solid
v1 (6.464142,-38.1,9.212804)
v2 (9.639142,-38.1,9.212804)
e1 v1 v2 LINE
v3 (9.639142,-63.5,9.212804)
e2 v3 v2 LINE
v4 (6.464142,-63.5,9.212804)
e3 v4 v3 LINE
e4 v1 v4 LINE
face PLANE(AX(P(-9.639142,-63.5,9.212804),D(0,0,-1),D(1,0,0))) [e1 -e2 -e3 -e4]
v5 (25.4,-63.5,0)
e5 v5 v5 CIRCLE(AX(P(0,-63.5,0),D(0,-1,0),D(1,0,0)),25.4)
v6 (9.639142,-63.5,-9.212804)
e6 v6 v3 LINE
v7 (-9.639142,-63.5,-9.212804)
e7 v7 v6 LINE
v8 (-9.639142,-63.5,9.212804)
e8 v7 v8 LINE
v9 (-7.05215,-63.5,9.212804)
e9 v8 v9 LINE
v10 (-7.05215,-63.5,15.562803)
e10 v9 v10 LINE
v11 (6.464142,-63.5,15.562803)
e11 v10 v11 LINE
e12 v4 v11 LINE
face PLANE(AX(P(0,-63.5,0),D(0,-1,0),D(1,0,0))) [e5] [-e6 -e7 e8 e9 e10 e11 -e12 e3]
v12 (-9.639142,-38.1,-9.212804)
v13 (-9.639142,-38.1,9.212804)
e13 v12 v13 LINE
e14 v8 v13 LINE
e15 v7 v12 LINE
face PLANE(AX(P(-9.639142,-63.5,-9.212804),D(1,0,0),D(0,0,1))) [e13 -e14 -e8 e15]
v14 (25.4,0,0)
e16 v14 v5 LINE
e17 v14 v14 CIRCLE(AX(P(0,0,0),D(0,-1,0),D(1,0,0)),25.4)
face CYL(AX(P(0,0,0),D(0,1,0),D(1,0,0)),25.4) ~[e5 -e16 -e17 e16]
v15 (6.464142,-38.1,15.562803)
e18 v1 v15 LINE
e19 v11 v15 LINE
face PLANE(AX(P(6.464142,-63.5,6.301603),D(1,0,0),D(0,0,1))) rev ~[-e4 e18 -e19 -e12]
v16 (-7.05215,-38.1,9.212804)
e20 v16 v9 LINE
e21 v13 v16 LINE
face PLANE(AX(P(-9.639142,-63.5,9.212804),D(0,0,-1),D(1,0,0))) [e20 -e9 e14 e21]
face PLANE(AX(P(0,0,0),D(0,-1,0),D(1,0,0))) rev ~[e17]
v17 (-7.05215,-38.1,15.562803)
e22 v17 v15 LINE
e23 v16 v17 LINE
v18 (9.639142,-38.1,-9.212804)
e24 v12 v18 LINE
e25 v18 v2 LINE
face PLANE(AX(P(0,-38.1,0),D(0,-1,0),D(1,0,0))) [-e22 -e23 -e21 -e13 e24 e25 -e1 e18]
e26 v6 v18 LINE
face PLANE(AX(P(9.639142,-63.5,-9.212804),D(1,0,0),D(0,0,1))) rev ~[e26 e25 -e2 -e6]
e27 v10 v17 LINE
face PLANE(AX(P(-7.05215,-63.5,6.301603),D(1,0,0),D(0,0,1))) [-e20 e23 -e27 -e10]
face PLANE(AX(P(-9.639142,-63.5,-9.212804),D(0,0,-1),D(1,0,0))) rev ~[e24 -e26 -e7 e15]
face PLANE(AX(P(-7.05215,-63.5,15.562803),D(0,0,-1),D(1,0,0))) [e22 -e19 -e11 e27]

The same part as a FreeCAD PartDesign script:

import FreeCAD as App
import Part
import Sketcher
Q = App.Units.Quantity

doc = App.newDocument("Part")
body = doc.addObject("PartDesign::Body", "Body")

# Sketch on XZ plane
sketch1 = body.newObject("Sketcher::SketchObject", "Sketch")
sketch1.AttachmentSupport = (doc.getObject("XZ_Plane"), [""])
sketch1.MapMode = "FlatFace"
sketch1.addGeometry(Part.Circle(App.Vector(0, 0, 0), App.Vector(0, 0, 1), 25), False)
sketch1.addConstraint([
    Sketcher.Constraint("Coincident", 0, 3, -1, 1),
    Sketcher.Constraint("Diameter", 0, Q("2 in")),
])
pad1 = body.newObject("PartDesign::Pad", "Pad")
pad1.Profile = sketch1
pad1.Length = Q("2.5 in")

# Sketch on XZ plane
sketch2 = body.newObject("Sketcher::SketchObject", "Sketch001")
sketch2.AttachmentSupport = (doc.getObject("XZ_Plane"), [""])
sketch2.MapMode = "FlatFace"
sketch2.AttachmentOffset = App.Placement(App.Vector(0, 0, 2.5 * 25.4), App.Rotation())
sketch2.addGeometry([
    Part.LineSegment(App.Vector(-10, 9, 0), App.Vector(-10, -9, 0)),
    Part.LineSegment(App.Vector(-10, -9, 0), App.Vector(10, -9, 0)),
    Part.LineSegment(App.Vector(10, -9, 0), App.Vector(10, 9, 0)),
    Part.LineSegment(App.Vector(10, 9, 0), App.Vector(-10, 9, 0)),
], False)
sketch2.addConstraint([
    Sketcher.Constraint("Coincident", 0, 2, 1, 1),
    Sketcher.Constraint("Coincident", 1, 2, 2, 1),
    Sketcher.Constraint("Coincident", 2, 2, 3, 1),
    Sketcher.Constraint("Coincident", 3, 2, 0, 1),
    Sketcher.Constraint("Vertical", 0),
    Sketcher.Constraint("Horizontal", 1),
    Sketcher.Constraint("Vertical", 2),
    Sketcher.Constraint("Horizontal", 3),
    Sketcher.Constraint("Symmetric", 0, 2, 2, 2, -1, 1),
    Sketcher.Constraint("DistanceY", 0, 2, 0, 1, 18.425608),
    Sketcher.Constraint("DistanceX", 1, 1, 1, 2, 19.278284),
])
pocket1 = body.newObject("PartDesign::Pocket", "Pocket")
pocket1.Profile = sketch2
pocket1.Length = Q("1 in")

# Sketch on XZ plane
sketch3 = body.newObject("Sketcher::SketchObject", "Sketch002")
sketch3.AttachmentSupport = (doc.getObject("XZ_Plane"), [""])
sketch3.MapMode = "FlatFace"
sketch3.AttachmentOffset = App.Placement(App.Vector(0, 0, 2.5 * 25.4), App.Rotation())
sketch3.addGeometry([
    Part.LineSegment(App.Vector(-7, 16, 0), App.Vector(-7, 6, 0)),
    Part.LineSegment(App.Vector(-7, 6, 0), App.Vector(6, 6, 0)),
    Part.LineSegment(App.Vector(6, 6, 0), App.Vector(6, 16, 0)),
    Part.LineSegment(App.Vector(6, 16, 0), App.Vector(-7, 16, 0)),
], False)
sketch3.addConstraint([
    Sketcher.Constraint("Coincident", 0, 2, 1, 1),
    Sketcher.Constraint("Coincident", 1, 2, 2, 1),
    Sketcher.Constraint("Coincident", 2, 2, 3, 1),
    Sketcher.Constraint("Coincident", 3, 2, 0, 1),
    Sketcher.Constraint("Vertical", 0),
    Sketcher.Constraint("Horizontal", 1),
    Sketcher.Constraint("Vertical", 2),
    Sketcher.Constraint("Horizontal", 3),
    Sketcher.Constraint("DistanceY", 0, 2, 0, 1, 9.261201),
    Sketcher.Constraint("DistanceX", 1, 1, 1, 2, 13.516292),
    Sketcher.Constraint("DistanceX", 0, 2, -1, 1, 7.05215),
    Sketcher.Constraint("DistanceY", -1, 1, 0, 2, 6.301603),
])
pocket2 = body.newObject("PartDesign::Pocket", "Pocket001")
pocket2.Profile = sketch3
pocket2.Length = Q("1 in")

doc.recompute()
